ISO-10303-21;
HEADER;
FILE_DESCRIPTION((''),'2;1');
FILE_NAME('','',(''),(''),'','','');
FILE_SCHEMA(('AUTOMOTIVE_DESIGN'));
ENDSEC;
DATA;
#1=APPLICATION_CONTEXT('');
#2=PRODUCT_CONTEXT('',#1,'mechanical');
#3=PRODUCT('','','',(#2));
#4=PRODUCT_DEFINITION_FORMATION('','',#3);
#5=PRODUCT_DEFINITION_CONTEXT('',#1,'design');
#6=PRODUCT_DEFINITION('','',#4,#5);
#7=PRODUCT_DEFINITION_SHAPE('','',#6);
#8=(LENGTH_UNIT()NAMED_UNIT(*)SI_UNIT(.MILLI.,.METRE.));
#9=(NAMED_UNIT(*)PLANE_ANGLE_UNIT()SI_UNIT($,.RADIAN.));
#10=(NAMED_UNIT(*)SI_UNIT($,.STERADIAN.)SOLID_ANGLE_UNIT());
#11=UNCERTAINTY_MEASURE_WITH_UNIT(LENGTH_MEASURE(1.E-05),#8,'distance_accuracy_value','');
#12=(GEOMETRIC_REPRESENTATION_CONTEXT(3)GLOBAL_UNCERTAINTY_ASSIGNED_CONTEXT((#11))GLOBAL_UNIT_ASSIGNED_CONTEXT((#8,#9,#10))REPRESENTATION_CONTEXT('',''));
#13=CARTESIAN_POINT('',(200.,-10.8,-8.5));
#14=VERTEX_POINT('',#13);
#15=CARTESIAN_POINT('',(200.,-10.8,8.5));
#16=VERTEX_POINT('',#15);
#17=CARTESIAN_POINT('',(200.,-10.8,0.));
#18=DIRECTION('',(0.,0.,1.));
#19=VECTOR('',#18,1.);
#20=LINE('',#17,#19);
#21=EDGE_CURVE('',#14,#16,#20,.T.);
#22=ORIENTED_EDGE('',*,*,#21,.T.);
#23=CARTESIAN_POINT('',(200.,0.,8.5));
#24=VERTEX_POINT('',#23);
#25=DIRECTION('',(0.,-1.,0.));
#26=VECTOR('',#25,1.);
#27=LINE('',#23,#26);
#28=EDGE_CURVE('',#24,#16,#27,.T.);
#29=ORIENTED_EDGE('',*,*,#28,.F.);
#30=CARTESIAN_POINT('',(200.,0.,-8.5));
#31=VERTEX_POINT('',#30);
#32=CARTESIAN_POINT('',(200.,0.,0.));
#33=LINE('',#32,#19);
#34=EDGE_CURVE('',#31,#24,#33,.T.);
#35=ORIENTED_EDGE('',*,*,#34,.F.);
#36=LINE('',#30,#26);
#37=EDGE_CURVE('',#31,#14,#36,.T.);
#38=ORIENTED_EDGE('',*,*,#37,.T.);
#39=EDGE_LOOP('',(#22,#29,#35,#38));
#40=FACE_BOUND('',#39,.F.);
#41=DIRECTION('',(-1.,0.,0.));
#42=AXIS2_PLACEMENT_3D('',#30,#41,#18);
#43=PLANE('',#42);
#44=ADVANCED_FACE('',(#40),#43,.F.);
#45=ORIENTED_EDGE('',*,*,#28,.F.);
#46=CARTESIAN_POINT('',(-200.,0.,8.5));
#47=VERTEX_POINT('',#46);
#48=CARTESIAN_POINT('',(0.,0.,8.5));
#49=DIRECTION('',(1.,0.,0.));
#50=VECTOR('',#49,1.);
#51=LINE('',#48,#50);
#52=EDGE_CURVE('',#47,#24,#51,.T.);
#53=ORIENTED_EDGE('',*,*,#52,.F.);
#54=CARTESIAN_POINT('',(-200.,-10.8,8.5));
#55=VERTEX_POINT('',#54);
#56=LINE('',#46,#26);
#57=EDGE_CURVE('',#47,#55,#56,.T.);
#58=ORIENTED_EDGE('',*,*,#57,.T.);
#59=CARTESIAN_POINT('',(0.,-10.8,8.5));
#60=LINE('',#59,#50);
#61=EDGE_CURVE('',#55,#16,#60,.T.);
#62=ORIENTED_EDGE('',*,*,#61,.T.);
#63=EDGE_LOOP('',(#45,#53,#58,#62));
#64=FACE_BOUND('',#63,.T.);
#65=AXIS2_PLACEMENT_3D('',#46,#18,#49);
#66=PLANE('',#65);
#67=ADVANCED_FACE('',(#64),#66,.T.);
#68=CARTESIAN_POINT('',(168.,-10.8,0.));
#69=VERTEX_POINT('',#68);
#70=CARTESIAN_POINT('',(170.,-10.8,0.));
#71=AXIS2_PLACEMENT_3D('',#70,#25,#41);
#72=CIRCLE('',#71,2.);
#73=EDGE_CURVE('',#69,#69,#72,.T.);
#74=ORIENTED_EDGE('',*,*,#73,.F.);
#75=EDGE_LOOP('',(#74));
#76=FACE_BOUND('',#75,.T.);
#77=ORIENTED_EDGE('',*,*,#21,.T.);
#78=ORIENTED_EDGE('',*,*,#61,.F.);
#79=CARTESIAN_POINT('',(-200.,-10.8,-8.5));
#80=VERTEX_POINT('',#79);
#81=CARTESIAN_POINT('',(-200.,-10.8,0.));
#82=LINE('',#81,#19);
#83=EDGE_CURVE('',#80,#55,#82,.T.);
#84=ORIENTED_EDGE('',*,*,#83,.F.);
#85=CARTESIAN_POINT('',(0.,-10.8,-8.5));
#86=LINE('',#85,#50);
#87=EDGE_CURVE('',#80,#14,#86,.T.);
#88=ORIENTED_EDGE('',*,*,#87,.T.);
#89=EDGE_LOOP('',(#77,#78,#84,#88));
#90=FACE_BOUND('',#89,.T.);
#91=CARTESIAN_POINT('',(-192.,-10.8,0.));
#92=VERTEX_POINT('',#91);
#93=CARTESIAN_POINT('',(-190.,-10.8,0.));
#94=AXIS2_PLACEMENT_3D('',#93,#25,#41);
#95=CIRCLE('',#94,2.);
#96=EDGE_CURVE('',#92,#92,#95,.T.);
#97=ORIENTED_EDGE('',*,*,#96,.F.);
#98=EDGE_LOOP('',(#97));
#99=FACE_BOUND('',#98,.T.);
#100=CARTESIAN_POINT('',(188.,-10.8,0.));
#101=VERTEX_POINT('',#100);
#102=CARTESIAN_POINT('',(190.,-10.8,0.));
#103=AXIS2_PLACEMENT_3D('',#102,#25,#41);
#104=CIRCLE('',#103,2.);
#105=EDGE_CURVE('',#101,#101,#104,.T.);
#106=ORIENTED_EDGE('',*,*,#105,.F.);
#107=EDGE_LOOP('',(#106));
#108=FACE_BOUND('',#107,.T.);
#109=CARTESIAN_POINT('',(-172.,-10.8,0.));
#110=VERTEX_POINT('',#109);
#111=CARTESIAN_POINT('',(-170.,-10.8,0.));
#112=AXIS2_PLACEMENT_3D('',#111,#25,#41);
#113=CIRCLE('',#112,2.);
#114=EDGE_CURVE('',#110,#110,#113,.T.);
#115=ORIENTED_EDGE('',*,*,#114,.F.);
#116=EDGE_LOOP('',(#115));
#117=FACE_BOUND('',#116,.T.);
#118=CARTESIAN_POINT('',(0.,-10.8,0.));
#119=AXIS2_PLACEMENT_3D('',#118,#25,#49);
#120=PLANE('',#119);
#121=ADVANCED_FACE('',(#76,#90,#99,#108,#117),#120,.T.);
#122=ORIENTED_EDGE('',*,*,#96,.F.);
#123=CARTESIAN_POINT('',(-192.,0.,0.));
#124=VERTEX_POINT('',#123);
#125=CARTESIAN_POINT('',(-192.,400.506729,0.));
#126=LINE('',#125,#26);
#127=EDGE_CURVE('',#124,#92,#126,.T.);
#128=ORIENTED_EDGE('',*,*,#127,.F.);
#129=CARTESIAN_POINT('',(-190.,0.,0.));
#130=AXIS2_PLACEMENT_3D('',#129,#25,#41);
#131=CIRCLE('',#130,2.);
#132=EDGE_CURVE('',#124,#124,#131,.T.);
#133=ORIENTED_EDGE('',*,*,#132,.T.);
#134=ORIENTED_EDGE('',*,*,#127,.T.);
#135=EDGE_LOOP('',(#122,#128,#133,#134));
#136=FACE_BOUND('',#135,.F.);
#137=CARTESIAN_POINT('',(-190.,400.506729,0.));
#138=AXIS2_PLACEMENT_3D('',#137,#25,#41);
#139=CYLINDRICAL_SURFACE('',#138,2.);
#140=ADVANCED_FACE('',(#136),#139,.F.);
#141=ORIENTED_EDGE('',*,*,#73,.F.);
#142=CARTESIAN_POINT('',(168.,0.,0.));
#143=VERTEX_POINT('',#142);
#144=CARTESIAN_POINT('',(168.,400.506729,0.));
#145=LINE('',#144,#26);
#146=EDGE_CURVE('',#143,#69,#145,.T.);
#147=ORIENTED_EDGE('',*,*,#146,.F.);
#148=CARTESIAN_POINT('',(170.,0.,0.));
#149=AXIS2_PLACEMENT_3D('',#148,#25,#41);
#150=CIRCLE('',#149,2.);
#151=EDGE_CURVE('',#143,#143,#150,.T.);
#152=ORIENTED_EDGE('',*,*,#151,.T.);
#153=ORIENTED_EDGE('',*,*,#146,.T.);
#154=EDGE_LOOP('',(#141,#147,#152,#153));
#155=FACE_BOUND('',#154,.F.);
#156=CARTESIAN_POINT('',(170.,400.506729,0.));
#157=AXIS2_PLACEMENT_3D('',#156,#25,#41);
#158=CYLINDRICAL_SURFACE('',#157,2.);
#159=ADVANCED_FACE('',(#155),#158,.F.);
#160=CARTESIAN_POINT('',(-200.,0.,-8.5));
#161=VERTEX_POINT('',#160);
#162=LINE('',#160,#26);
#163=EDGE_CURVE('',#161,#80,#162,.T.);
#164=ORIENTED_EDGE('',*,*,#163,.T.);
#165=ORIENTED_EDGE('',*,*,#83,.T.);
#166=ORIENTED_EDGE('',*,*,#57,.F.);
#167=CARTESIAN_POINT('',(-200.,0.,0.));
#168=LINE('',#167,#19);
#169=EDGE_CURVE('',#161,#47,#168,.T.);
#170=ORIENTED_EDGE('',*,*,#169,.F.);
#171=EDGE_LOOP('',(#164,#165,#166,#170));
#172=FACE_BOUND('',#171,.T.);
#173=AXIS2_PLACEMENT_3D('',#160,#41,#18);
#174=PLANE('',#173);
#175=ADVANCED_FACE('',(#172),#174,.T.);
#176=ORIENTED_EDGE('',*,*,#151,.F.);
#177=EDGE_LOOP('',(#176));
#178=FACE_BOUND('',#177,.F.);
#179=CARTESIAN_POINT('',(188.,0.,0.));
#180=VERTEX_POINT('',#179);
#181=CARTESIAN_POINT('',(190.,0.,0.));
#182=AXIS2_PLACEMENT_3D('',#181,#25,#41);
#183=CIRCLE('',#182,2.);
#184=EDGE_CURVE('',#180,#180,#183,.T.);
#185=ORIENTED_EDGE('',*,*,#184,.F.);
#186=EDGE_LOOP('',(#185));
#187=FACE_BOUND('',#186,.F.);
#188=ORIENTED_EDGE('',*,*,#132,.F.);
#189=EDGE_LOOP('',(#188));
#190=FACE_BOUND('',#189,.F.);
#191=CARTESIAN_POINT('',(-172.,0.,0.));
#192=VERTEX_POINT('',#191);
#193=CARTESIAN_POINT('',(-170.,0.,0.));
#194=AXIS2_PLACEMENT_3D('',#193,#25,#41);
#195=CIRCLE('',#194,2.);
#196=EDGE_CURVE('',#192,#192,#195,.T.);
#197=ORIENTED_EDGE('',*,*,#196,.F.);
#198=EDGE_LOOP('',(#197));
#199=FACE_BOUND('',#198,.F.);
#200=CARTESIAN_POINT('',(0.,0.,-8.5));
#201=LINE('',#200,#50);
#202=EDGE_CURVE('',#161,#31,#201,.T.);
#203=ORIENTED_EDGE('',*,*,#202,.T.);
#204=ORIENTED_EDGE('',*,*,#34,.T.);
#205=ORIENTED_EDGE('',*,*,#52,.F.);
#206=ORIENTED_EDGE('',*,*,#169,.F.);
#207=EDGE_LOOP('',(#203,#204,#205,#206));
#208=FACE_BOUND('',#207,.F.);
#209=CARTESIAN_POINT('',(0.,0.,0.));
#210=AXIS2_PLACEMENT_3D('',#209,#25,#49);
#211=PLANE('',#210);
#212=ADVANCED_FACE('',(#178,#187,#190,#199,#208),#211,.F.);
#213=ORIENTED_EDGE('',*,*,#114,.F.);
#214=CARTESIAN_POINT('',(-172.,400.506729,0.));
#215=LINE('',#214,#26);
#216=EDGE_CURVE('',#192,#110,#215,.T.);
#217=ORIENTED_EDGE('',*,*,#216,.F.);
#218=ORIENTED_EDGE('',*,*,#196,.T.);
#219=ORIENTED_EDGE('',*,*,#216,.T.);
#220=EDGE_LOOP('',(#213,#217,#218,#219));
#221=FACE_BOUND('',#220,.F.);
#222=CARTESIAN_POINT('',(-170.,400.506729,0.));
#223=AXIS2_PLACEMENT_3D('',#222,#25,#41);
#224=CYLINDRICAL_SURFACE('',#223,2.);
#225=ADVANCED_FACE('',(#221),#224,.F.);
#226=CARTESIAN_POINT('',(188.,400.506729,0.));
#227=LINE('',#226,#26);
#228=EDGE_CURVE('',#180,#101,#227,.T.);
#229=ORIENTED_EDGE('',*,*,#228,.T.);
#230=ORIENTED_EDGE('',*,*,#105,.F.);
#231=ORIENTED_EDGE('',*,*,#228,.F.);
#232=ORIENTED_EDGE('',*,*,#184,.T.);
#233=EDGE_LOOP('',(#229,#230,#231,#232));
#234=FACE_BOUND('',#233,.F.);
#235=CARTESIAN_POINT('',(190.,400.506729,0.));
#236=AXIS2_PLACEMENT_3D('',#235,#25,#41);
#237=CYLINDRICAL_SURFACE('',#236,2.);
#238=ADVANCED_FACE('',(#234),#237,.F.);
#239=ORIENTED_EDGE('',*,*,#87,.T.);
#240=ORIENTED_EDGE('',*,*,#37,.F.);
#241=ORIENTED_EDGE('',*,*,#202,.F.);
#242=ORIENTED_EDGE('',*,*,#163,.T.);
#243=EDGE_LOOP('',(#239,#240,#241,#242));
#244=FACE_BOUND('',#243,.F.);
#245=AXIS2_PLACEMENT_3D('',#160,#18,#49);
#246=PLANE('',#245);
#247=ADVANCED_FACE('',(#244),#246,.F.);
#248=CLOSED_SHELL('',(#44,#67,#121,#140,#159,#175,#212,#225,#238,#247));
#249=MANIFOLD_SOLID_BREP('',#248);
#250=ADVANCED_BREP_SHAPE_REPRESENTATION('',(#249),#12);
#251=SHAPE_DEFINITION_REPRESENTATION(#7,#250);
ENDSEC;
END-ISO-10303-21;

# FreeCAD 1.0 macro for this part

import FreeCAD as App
import Part
import Sketcher
Q = App.Units.Quantity


def add_polygon(sketch, points):
    """Adds a closed chain of lines whose ends are joined by coincident constraints."""
    first, n = sketch.GeometryCount, len(points)
    for a, b in zip(points, points[1:] + points[:1]):
        sketch.addGeometry(Part.LineSegment(App.Vector(*a, 0), App.Vector(*b, 0)), False)
    for i in range(n):
        sketch.addConstraint(Sketcher.Constraint("Coincident", first + i, 2, first + (i + 1) % n, 1))

doc = App.newDocument("Part")
params = doc.addObject("Spreadsheet::Sheet", "Params")
for row, (alias, value) in enumerate([
    ("sketch1_width", "400 mm"),
    ("sketch1_height", "17 mm"),
    ("pad1_length", "10.8 mm"),
    ("sketch2_diameter", "4 mm"),
    ("hole_diameter", "4 mm"),
], start=1):
    params.set(f"A{row}", alias)
    params.set(f"B{row}", "=" + value)
    params.setAlias(f"B{row}", alias)

body = doc.addObject("PartDesign::Body", "Body")

# Sketch on XZ plane
sketch1 = body.newObject("Sketcher::SketchObject", "Sketch")
sketch1.AttachmentSupport = (doc.getObject("XZ_Plane"), [""])
sketch1.MapMode = "FlatFace"
add_polygon(sketch1, [(-200, 8), (-200, -8), (200, -8), (200, 8)])  # lines 0-3
sketch1.addConstraint(Sketcher.Constraint("Vertical", 0))
sketch1.addConstraint(Sketcher.Constraint("Horizontal", 1))
sketch1.addConstraint(Sketcher.Constraint("Vertical", 2))
sketch1.addConstraint(Sketcher.Constraint("Horizontal", 3))
sketch1.addConstraint(Sketcher.Constraint("Symmetric", 0, 2, 2, 2, -1, 1))
sketch1.addConstraint(Sketcher.Constraint("DistanceX", 1, 1, 1, 2, Q("400 mm")))
sketch1.addConstraint(Sketcher.Constraint("DistanceY", 0, 2, 0, 1, Q("17 mm")))
sketch1.setExpression("Constraints[9]", "Params.sketch1_width")
sketch1.setExpression("Constraints[10]", "Params.sketch1_height")
pad1 = body.newObject("PartDesign::Pad", "Pad")
pad1.Profile = sketch1
pad1.setExpression("Length", "Params.pad1_length")

# Sketch on XZ plane
sketch2 = body.newObject("Sketcher::SketchObject", "Sketch001")
sketch2.AttachmentSupport = (doc.getObject("XZ_Plane"), [""])
sketch2.MapMode = "FlatFace"
sketch2.addGeometry(Part.Circle(App.Vector(-190, 0, 0), App.Vector(0, 0, 1), 2), False)
sketch2.addGeometry(Part.Circle(App.Vector(-170, 0, 0), App.Vector(0, 0, 1), 2), False)
sketch2.addGeometry(Part.Circle(App.Vector(170, 0, 0), App.Vector(0, 0, 1), 2), False)
sketch2.addGeometry(Part.Circle(App.Vector(190, 0, 0), App.Vector(0, 0, 1), 2), False)
sketch2.addConstraint(Sketcher.Constraint("Equal", 0, 1))
sketch2.addConstraint(Sketcher.Constraint("Equal", 1, 2))
sketch2.addConstraint(Sketcher.Constraint("Equal", 2, 3))
sketch2.addConstraint(Sketcher.Constraint("Symmetric", 1, 3, 2, 3, -1, 1))
sketch2.addConstraint(Sketcher.Constraint("Symmetric", 0, 3, 3, 3, -1, 1))
sketch2.addConstraint(Sketcher.Constraint("PointOnObject", 0, 3, -1))
sketch2.addConstraint(Sketcher.Constraint("PointOnObject", 1, 3, -1))
sketch2.addConstraint(Sketcher.Constraint("Diameter", 0, Q("4 mm")))
sketch2.addConstraint(Sketcher.Constraint("DistanceX", 0, 3, -1, 1, Q("190 mm")))
sketch2.addConstraint(Sketcher.Constraint("DistanceX", 1, 3, -1, 1, Q("170 mm")))
sketch2.setExpression("Constraints[7]", "Params.sketch2_diameter")
doc.recompute()
hole = body.newObject("PartDesign::Hole", "Hole")
hole.Profile = sketch2
hole.ThreadType = "None"
hole.setExpression("Diameter", "Params.hole_diameter")
hole.DepthType = "ThroughAll"
hole.Reversed = True

doc.recompute()
